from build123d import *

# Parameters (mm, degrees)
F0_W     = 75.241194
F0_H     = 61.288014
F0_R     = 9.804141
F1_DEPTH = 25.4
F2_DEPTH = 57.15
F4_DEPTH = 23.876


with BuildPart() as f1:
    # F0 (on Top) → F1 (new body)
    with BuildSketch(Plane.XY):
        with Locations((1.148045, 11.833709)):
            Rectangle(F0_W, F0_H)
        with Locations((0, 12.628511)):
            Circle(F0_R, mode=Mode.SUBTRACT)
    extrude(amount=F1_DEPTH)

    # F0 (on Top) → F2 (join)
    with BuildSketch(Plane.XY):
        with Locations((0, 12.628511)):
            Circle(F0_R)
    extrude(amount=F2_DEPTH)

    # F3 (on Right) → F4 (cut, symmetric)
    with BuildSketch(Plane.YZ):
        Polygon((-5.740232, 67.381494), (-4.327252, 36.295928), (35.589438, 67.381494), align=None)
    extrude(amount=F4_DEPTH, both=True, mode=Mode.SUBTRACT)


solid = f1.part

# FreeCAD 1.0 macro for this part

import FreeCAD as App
import Part
import Sketcher
Q = App.Units.Quantity


def add_polygon(sketch, points):
    """Adds a closed chain of lines whose ends are joined by coincident constraints."""
    first, n = sketch.GeometryCount, len(points)
    for a, b in zip(points, points[1:] + points[:1]):
        sketch.addGeometry(Part.LineSegment(App.Vector(*a, 0), App.Vector(*b, 0)), False)
    for i in range(n):
        sketch.addConstraint(Sketcher.Constraint("Coincident", first + i, 2, first + (i + 1) % n, 1))

doc = App.newDocument("Part")
body = doc.addObject("PartDesign::Body", "Body")

sketch1 = body.newObject("Sketcher::SketchObject", "Sketch")
sketch1.AttachmentSupport = (doc.getObject("XY_Plane"), [""])
sketch1.MapMode = "FlatFace"
add_polygon(sketch1, [(-36.472552, 42.477716), (-36.472552, -18.810298), (38.768642, -18.810298), (38.768642, 42.477716)])
sketch1.addGeometry(Part.Circle(App.Vector(0, 12.628511, 0), App.Vector(0, 0, 1), 9.804141), False)
sketch1.addConstraint([
    Sketcher.Constraint("Vertical", 0),
    Sketcher.Constraint("Horizontal", 1),
    Sketcher.Constraint("Vertical", 2),
    Sketcher.Constraint("Horizontal", 3),
    Sketcher.Constraint("PointOnObject", 4, 3, -2),
    Sketcher.Constraint("Diameter", 4, Q("19.608282 mm")),
    Sketcher.Constraint("DistanceX", 1, 1, 1, 2, Q("75.241194 mm")),
    Sketcher.Constraint("DistanceY", 0, 2, 0, 1, Q("61.288014 mm")),
    Sketcher.Constraint("DistanceY", -1, 1, 4, 3, Q("12.628511 mm")),
    Sketcher.Constraint("DistanceY", 0, 2, 4, 3, Q("31.438809 mm")),
    Sketcher.Constraint("DistanceX", 0, 2, -1, 1, Q("36.472552 mm")),
])
pad1 = body.newObject("PartDesign::Pad", "Pad")
pad1.Profile = sketch1
pad1.Length = Q("1 in")

sketch2 = body.newObject("Sketcher::SketchObject", "Sketch001")
sketch2.AttachmentSupport = (doc.getObject("XY_Plane"), [""])
sketch2.MapMode = "FlatFace"
sketch2.addGeometry(Part.Circle(App.Vector(0, 12.628511, 0), App.Vector(0, 0, 1), 9.804141), False)
sketch2.addConstraint([
    Sketcher.Constraint("PointOnObject", 0, 3, -2),
    Sketcher.Constraint("Diameter", 0, Q("19.608282 mm")),
    Sketcher.Constraint("DistanceY", -1, 1, 0, 3, Q("12.628511 mm")),
])
pad2 = body.newObject("PartDesign::Pad", "Pad001")
pad2.Profile = sketch2
pad2.Length = Q("2.25 in")

sketch3 = body.newObject("Sketcher::SketchObject", "Sketch002")
sketch3.AttachmentSupport = (doc.getObject("YZ_Plane"), [""])
sketch3.MapMode = "FlatFace"
add_polygon(sketch3, [(-5.740232, 67.381494), (-4.327252, 36.295928), (35.589438, 67.381494)])
sketch3.addConstraint([
    Sketcher.Constraint("Horizontal", 2),
    Sketcher.Constraint("DistanceX", 2, 2, 2, 1, Q("41.32967 mm")),
    Sketcher.Constraint("Distance", 1, Q("50.593029 mm")),
    Sketcher.Constraint("DistanceX", 0, 2, -1, 1, Q("4.327252 mm")),
    Sketcher.Constraint("DistanceY", -1, 1, 0, 2, Q("36.295928 mm")),
    Sketcher.Constraint("DistanceX", 2, 2, -1, 1, Q("5.740232 mm")),
])
pocket1 = body.newObject("PartDesign::Pocket", "Pocket")
pocket1.Profile = sketch3
pocket1.Length = Q("1.88 in")
pocket1.Midplane = True

doc.recompute()
